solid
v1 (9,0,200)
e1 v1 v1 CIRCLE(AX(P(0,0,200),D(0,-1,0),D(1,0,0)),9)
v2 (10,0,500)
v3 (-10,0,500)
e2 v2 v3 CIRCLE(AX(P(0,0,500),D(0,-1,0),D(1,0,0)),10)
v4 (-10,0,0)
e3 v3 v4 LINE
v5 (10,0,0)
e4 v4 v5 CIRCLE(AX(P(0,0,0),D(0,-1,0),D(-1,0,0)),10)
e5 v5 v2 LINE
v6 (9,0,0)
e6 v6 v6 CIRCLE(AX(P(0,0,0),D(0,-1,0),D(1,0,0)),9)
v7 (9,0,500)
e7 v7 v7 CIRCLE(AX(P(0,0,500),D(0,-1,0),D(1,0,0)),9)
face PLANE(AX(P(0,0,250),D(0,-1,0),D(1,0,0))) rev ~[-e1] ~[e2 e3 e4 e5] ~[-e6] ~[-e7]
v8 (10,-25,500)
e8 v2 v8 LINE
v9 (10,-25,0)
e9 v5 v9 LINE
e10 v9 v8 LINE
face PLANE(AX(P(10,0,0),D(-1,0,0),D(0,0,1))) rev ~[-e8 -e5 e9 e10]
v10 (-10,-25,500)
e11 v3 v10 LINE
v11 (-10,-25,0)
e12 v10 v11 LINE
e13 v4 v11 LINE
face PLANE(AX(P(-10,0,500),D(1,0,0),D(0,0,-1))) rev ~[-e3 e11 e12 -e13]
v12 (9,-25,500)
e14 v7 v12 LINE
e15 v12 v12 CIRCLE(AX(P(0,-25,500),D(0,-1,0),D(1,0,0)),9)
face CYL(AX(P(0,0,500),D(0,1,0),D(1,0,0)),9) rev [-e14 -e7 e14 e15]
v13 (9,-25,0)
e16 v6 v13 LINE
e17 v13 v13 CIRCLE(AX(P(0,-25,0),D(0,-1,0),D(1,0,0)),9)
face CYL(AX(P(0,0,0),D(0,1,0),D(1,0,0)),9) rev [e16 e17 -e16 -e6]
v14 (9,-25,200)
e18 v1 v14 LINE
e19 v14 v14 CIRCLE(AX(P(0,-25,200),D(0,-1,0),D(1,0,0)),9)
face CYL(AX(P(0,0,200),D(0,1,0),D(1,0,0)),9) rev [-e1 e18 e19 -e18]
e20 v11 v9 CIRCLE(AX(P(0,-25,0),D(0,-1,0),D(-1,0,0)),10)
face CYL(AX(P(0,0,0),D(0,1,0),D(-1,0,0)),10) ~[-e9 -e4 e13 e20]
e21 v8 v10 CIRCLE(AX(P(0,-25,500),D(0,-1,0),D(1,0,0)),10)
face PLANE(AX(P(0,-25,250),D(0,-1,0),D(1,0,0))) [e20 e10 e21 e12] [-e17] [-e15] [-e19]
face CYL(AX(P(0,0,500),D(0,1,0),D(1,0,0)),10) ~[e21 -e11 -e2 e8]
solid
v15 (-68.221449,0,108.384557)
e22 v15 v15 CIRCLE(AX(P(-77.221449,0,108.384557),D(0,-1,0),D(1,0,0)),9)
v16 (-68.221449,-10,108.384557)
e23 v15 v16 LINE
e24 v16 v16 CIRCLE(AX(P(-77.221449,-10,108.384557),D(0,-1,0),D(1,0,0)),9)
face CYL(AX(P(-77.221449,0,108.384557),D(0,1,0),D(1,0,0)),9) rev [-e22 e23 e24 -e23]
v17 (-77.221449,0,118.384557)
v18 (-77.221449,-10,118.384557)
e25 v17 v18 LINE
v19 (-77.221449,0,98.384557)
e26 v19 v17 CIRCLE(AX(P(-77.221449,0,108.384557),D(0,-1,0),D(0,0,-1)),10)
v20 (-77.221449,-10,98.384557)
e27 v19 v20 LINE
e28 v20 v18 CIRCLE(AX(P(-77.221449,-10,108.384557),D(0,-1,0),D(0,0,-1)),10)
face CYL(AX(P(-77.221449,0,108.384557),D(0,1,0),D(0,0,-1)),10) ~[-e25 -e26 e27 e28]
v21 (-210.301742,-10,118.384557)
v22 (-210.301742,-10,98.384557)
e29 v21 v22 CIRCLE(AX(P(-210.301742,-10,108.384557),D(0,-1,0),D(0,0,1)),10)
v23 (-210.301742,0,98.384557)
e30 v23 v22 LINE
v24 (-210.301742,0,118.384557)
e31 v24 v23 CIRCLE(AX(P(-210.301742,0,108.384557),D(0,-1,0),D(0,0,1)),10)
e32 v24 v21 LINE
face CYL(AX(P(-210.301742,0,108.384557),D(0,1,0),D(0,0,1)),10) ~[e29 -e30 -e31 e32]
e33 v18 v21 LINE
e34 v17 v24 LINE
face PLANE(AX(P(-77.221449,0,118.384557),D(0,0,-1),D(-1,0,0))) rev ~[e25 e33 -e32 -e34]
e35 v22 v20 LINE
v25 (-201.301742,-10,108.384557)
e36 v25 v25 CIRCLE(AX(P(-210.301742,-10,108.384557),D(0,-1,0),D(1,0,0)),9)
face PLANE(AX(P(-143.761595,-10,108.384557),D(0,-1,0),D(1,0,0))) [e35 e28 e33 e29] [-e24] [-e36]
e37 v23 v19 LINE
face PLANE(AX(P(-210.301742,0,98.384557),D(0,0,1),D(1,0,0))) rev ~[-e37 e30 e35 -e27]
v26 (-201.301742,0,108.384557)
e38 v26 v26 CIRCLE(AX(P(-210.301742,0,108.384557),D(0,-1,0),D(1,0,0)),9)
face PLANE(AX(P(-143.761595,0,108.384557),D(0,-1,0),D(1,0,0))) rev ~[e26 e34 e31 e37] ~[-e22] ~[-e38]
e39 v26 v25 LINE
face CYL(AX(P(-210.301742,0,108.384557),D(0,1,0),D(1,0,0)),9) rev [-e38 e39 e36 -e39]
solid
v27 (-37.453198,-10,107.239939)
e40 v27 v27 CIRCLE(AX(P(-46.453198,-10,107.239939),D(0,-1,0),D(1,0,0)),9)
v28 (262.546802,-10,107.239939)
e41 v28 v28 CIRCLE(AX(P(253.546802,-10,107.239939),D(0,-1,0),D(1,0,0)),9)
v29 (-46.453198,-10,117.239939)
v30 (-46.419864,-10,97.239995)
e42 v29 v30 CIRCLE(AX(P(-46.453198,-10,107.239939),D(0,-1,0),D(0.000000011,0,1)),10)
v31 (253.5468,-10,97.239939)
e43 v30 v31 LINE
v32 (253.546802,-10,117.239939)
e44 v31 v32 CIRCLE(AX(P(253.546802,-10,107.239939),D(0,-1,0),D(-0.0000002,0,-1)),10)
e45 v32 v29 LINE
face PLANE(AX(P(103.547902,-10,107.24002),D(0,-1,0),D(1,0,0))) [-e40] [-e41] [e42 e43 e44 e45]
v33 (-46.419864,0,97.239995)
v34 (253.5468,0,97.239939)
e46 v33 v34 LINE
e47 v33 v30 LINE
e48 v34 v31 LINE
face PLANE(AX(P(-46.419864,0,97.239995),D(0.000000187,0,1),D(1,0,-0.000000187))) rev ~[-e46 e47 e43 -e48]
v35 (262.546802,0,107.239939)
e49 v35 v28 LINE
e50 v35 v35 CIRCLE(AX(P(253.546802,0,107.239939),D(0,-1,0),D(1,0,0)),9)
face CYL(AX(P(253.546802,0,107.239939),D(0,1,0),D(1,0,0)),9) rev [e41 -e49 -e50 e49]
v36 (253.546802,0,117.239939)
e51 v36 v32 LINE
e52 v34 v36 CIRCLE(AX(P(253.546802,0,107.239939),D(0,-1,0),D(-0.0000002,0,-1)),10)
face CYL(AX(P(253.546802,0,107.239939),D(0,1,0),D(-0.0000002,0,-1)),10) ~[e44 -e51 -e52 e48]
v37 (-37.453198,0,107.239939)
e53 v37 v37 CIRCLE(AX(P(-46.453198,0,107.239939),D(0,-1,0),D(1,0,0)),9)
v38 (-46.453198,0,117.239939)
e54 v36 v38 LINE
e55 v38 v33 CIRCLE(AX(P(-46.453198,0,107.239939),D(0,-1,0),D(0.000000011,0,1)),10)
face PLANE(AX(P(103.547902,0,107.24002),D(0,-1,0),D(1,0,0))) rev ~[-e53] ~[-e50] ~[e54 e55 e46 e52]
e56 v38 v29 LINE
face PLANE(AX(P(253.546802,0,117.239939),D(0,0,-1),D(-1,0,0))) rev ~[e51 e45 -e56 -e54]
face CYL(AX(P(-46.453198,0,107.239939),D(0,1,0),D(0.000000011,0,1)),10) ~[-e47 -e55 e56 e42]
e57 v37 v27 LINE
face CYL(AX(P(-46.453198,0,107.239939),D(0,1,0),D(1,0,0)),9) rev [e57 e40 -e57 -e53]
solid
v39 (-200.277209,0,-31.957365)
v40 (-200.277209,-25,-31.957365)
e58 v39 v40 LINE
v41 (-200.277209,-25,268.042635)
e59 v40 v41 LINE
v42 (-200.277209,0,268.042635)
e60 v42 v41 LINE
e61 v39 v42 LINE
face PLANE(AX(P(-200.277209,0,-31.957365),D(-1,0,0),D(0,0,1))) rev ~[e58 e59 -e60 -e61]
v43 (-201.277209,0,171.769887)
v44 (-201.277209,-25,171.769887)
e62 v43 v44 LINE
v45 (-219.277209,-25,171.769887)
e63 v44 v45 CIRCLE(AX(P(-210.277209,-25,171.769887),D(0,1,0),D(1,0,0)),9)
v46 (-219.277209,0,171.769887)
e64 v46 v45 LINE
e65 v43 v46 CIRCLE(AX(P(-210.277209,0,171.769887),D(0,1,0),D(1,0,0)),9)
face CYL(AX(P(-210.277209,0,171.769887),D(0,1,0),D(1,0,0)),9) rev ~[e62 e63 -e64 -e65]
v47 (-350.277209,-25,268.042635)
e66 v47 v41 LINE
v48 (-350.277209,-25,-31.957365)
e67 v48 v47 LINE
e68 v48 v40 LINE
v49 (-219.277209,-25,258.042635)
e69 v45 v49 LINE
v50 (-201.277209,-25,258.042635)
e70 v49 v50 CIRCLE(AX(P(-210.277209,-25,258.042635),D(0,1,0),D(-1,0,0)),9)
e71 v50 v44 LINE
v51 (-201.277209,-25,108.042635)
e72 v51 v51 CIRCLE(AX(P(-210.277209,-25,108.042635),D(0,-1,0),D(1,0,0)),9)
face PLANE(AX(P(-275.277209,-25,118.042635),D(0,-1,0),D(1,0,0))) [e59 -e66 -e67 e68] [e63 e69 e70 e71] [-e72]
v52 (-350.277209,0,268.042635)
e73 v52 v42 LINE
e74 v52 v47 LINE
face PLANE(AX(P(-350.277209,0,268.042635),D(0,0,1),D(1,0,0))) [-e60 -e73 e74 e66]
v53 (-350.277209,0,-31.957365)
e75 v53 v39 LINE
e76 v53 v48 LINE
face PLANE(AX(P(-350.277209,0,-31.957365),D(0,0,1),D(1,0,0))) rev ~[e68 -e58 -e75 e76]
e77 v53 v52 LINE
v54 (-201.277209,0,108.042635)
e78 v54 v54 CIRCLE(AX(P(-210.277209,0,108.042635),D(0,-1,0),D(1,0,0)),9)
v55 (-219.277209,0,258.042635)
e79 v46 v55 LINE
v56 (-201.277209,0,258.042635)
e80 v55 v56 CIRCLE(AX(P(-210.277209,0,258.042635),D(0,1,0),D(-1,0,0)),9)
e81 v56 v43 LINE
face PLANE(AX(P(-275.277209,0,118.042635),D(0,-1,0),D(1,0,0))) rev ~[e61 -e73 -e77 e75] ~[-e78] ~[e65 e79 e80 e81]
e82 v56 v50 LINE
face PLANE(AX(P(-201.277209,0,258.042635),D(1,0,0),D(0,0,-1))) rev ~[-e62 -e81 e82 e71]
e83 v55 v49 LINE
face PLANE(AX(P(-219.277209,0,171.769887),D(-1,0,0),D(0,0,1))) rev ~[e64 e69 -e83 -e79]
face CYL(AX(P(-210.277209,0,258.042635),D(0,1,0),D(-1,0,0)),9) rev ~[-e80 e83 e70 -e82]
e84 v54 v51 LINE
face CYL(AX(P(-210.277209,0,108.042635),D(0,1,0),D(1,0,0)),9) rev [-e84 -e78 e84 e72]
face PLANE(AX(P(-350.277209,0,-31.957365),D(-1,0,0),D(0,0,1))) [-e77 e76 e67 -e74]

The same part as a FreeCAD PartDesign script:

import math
import FreeCAD as App
import Part
import Sketcher

V = App.Vector
Q = App.Units.Quantity


def add_polygon(sketch, points):
    """Adds a closed chain of lines whose ends are joined by coincident constraints."""
    first, n = sketch.GeometryCount, len(points)
    for a, b in zip(points, points[1:] + points[:1]):
        sketch.addGeometry(Part.LineSegment(App.Vector(*a, 0), App.Vector(*b, 0)), False)
    for i in range(n):
        sketch.addConstraint(Sketcher.Constraint("Coincident", first + i, 2, first + (i + 1) % n, 1))

doc = App.newDocument("Part")
body = doc.addObject("PartDesign::Body", "Body")

sketch1 = body.newObject("Sketcher::SketchObject", "Sketch")
sketch1.AttachmentSupport = (doc.getObject("XZ_Plane"), [""])
sketch1.MapMode = "FlatFace"
sketch1.addGeometry([
    Part.LineSegment(V(10, 0, 0), V(10, 500, 0)),
    Part.ArcOfCircle(Part.Circle(V(0, 500, 0), V(0, 0, 1), 10), math.radians(0), math.radians(180)),
    Part.LineSegment(V(-10, 500, 0), V(-10, 0, 0)),
    Part.ArcOfCircle(Part.Circle(V(0, 0, 0), V(0, 0, 1), 10), math.radians(180), math.radians(360)),
    Part.Circle(V(0, 0, 0), V(0, 0, 1), 9),
    Part.Circle(V(0, 200, 0), V(0, 0, 1), 9),
    Part.Circle(V(0, 500, 0), V(0, 0, 1), 9),
], False)
sketch1.addConstraint([
    Sketcher.Constraint("Tangent", 0, 2, 1, 1),
    Sketcher.Constraint("Tangent", 1, 2, 2, 1),
    Sketcher.Constraint("Tangent", 2, 2, 3, 1),
    Sketcher.Constraint("Tangent", 3, 2, 0, 1),
    Sketcher.Constraint("Vertical", 0),
    Sketcher.Constraint("Vertical", 2),
    Sketcher.Constraint("Coincident", 3, 3, -1, 1),
    Sketcher.Constraint("Coincident", 4, 3, -1, 1),
    Sketcher.Constraint("Coincident", 6, 3, 1, 3),
    Sketcher.Constraint("Equal", 4, 5),
    Sketcher.Constraint("Equal", 5, 6),
    Sketcher.Constraint("PointOnObject", 5, 3, -2),
    Sketcher.Constraint("Diameter", 4, Q("18 mm")),
    Sketcher.Constraint("Radius", 1, Q("10 mm")),
    Sketcher.Constraint("DistanceY", 0, 1, 0, 2, Q("500 mm")),
    Sketcher.Constraint("DistanceY", -1, 1, 5, 3, Q("200 mm")),
])
pad1 = body.newObject("PartDesign::Pad", "Pad")
pad1.Profile = sketch1
pad1.Length = 25
body2 = doc.addObject("PartDesign::Body", "Body001")

sketch2 = body2.newObject("Sketcher::SketchObject", "Sketch001")
sketch2.AttachmentSupport = (doc.getObject("XZ_Plane001"), [""])
sketch2.MapMode = "FlatFace"
add_polygon(sketch2, [(-350, 268), (-350, -32), (-200, -32), (-200, 268)])
sketch2.addGeometry(Part.Circle(V(-210, 108, 0), V(0, 0, 1), 9), False)
sketch2.addGeometry(Part.LineSegment(V(-219, 172, 0), V(-219, 258, 0)), False)
sketch2.addGeometry(Part.ArcOfCircle(Part.Circle(V(-210, 258, 0), V(0, 0, 1), 9), math.radians(0), math.radians(180)), False)
sketch2.addGeometry(Part.LineSegment(V(-201, 258, 0), V(-201, 172, 0)), False)
sketch2.addGeometry(Part.ArcOfCircle(Part.Circle(V(-210, 172, 0), V(0, 0, 1), 9), math.radians(180), math.radians(360)), False)
sketch2.addConstraint([
    Sketcher.Constraint("Tangent", 5, 2, 6, 2),
    Sketcher.Constraint("Tangent", 6, 1, 7, 1),
    Sketcher.Constraint("Tangent", 7, 2, 8, 2),
    Sketcher.Constraint("Tangent", 8, 1, 5, 1),
    Sketcher.Constraint("Vertical", 0),
    Sketcher.Constraint("Horizontal", 1),
    Sketcher.Constraint("Vertical", 2),
    Sketcher.Constraint("Horizontal", 3),
    Sketcher.Constraint("Vertical", 5),
    Sketcher.Constraint("Vertical", 7),
    Sketcher.Constraint("Equal", 4, 6),
    Sketcher.Constraint("Vertical", 4, 3, 6, 3),
    Sketcher.Constraint("Diameter", 4, Q("18 mm")),
    Sketcher.Constraint("DistanceX", 1, 1, 1, 2, Q("150 mm")),
    Sketcher.Constraint("DistanceY", 0, 2, 0, 1, Q("300 mm")),
    Sketcher.Constraint("DistanceY", 4, 3, 6, 3, Q("150 mm")),
    Sketcher.Constraint("DistanceX", 0, 2, 4, 3, Q("140 mm")),
    Sketcher.Constraint("DistanceY", 0, 2, 4, 3, Q("140 mm")),
    Sketcher.Constraint("DistanceY", 5, 1, 5, 2, Q("86.272748 mm")),
    Sketcher.Constraint("DistanceX", 4, 3, -1, 1, Q("210.277209 mm")),
    Sketcher.Constraint("DistanceY", -1, 1, 4, 3, Q("108.042635 mm")),
])
pad2 = body2.newObject("PartDesign::Pad", "Pad001")
pad2.Profile = sketch2
pad2.Length = 25
body3 = doc.addObject("PartDesign::Body", "Body002")

sketch3 = body3.newObject("Sketcher::SketchObject", "Sketch002")
sketch3.AttachmentSupport = (doc.getObject("XZ_Plane002"), [""])
sketch3.MapMode = "FlatFace"
sketch3.addGeometry([
    Part.LineSegment(V(-77, 118, 0), V(-210, 118, 0)),
    Part.ArcOfCircle(Part.Circle(V(-210, 108, 0), V(0, 0, 1), 10), math.radians(90), math.radians(270)),
    Part.LineSegment(V(-210, 98, 0), V(-77, 98, 0)),
    Part.ArcOfCircle(Part.Circle(V(-77, 108, 0), V(0, 0, 1), 10), math.radians(-90), math.radians(90)),
    Part.Circle(V(-210, 108, 0), V(0, 0, 1), 9),
    Part.Circle(V(-77, 108, 0), V(0, 0, 1), 9),
], False)
sketch3.addConstraint([
    Sketcher.Constraint("Tangent", 0, 2, 1, 1),
    Sketcher.Constraint("Tangent", 1, 2, 2, 1),
    Sketcher.Constraint("Tangent", 2, 2, 3, 1),
    Sketcher.Constraint("Tangent", 3, 2, 0, 1),
    Sketcher.Constraint("Horizontal", 0),
    Sketcher.Constraint("Horizontal", 2),
    Sketcher.Constraint("Coincident", 4, 3, 1, 3),
    Sketcher.Constraint("Coincident", 5, 3, 3, 3),
    Sketcher.Constraint("Equal", 4, 5),
    Sketcher.Constraint("Diameter", 4, Q("18 mm")),
    Sketcher.Constraint("Radius", 1, Q("10 mm")),
    Sketcher.Constraint("DistanceX", 0, 2, 0, 1, Q("133.080293 mm")),
    Sketcher.Constraint("DistanceX", 1, 3, -1, 1, Q("210.301742 mm")),
    Sketcher.Constraint("DistanceY", -1, 1, 1, 3, Q("108.384557 mm")),
])
pad3 = body3.newObject("PartDesign::Pad", "Pad002")
pad3.Profile = sketch3
pad3.Length = 10
body4 = doc.addObject("PartDesign::Body", "Body003")

sketch4 = body4.newObject("Sketcher::SketchObject", "Sketch003")
sketch4.AttachmentSupport = (doc.getObject("XZ_Plane003"), [""])
sketch4.MapMode = "FlatFace"
sketch4.addGeometry([
    Part.LineSegment(V(253.546802, 117.239939, 0), V(-46.453198, 117.239939, 0)),
    Part.ArcOfCircle(Part.Circle(V(-46.453198, 107.239939, 0), V(0, 0, 1), 10), math.radians(89.999999), math.radians(270.190991)),
    Part.LineSegment(V(-46.419864, 97.239995, 0), V(253.5468, 97.239939, 0)),
    Part.ArcOfCircle(Part.Circle(V(253.546802, 107.239939, 0), V(0, 0, 1), 10), math.radians(-90.000011), math.radians(90)),
    Part.Circle(V(-46.453198, 107.239939, 0), V(0, 0, 1), 9),
    Part.Circle(V(253.546802, 107.239939, 0), V(0, 0, 1), 9),
], False)
sketch4.addConstraint([
    Sketcher.Constraint("Coincident", 0, 2, 1, 1),
    Sketcher.Constraint("Coincident", 1, 2, 2, 1),
    Sketcher.Constraint("Coincident", 2, 2, 3, 1),
    Sketcher.Constraint("Coincident", 3, 2, 0, 1),
    Sketcher.Constraint("Horizontal", 0),
    Sketcher.Constraint("Coincident", 4, 3, 1, 3),
    Sketcher.Constraint("Coincident", 5, 3, 3, 3),
    Sketcher.Constraint("Diameter", 4, Q("18 mm")),
    Sketcher.Constraint("Diameter", 5, Q("18 mm")),
    Sketcher.Constraint("Radius", 1, Q("10 mm")),
    Sketcher.Constraint("Radius", 3, Q("10 mm")),
    Sketcher.Constraint("DistanceX", 0, 2, 0, 1, Q("300 mm")),
    Sketcher.Constraint("DistanceX", 1, 3, 3, 3, Q("300 mm")),
    Sketcher.Constraint("DistanceX", 0, 2, 3, 3, Q("300 mm")),
    Sketcher.Constraint("DistanceX", 4, 3, 2, 2, Q("299.999998 mm")),
    Sketcher.Constraint("DistanceX", 1, 3, -1, 1, Q("46.453198 mm")),
    Sketcher.Constraint("DistanceY", -1, 1, 1, 3, Q("107.239939 mm")),
    Sketcher.Constraint("Distance", 2, Q("299.966664 mm")),
])
pad4 = body4.newObject("PartDesign::Pad", "Pad003")
pad4.Profile = sketch4
pad4.Length = 10

doc.recompute()
